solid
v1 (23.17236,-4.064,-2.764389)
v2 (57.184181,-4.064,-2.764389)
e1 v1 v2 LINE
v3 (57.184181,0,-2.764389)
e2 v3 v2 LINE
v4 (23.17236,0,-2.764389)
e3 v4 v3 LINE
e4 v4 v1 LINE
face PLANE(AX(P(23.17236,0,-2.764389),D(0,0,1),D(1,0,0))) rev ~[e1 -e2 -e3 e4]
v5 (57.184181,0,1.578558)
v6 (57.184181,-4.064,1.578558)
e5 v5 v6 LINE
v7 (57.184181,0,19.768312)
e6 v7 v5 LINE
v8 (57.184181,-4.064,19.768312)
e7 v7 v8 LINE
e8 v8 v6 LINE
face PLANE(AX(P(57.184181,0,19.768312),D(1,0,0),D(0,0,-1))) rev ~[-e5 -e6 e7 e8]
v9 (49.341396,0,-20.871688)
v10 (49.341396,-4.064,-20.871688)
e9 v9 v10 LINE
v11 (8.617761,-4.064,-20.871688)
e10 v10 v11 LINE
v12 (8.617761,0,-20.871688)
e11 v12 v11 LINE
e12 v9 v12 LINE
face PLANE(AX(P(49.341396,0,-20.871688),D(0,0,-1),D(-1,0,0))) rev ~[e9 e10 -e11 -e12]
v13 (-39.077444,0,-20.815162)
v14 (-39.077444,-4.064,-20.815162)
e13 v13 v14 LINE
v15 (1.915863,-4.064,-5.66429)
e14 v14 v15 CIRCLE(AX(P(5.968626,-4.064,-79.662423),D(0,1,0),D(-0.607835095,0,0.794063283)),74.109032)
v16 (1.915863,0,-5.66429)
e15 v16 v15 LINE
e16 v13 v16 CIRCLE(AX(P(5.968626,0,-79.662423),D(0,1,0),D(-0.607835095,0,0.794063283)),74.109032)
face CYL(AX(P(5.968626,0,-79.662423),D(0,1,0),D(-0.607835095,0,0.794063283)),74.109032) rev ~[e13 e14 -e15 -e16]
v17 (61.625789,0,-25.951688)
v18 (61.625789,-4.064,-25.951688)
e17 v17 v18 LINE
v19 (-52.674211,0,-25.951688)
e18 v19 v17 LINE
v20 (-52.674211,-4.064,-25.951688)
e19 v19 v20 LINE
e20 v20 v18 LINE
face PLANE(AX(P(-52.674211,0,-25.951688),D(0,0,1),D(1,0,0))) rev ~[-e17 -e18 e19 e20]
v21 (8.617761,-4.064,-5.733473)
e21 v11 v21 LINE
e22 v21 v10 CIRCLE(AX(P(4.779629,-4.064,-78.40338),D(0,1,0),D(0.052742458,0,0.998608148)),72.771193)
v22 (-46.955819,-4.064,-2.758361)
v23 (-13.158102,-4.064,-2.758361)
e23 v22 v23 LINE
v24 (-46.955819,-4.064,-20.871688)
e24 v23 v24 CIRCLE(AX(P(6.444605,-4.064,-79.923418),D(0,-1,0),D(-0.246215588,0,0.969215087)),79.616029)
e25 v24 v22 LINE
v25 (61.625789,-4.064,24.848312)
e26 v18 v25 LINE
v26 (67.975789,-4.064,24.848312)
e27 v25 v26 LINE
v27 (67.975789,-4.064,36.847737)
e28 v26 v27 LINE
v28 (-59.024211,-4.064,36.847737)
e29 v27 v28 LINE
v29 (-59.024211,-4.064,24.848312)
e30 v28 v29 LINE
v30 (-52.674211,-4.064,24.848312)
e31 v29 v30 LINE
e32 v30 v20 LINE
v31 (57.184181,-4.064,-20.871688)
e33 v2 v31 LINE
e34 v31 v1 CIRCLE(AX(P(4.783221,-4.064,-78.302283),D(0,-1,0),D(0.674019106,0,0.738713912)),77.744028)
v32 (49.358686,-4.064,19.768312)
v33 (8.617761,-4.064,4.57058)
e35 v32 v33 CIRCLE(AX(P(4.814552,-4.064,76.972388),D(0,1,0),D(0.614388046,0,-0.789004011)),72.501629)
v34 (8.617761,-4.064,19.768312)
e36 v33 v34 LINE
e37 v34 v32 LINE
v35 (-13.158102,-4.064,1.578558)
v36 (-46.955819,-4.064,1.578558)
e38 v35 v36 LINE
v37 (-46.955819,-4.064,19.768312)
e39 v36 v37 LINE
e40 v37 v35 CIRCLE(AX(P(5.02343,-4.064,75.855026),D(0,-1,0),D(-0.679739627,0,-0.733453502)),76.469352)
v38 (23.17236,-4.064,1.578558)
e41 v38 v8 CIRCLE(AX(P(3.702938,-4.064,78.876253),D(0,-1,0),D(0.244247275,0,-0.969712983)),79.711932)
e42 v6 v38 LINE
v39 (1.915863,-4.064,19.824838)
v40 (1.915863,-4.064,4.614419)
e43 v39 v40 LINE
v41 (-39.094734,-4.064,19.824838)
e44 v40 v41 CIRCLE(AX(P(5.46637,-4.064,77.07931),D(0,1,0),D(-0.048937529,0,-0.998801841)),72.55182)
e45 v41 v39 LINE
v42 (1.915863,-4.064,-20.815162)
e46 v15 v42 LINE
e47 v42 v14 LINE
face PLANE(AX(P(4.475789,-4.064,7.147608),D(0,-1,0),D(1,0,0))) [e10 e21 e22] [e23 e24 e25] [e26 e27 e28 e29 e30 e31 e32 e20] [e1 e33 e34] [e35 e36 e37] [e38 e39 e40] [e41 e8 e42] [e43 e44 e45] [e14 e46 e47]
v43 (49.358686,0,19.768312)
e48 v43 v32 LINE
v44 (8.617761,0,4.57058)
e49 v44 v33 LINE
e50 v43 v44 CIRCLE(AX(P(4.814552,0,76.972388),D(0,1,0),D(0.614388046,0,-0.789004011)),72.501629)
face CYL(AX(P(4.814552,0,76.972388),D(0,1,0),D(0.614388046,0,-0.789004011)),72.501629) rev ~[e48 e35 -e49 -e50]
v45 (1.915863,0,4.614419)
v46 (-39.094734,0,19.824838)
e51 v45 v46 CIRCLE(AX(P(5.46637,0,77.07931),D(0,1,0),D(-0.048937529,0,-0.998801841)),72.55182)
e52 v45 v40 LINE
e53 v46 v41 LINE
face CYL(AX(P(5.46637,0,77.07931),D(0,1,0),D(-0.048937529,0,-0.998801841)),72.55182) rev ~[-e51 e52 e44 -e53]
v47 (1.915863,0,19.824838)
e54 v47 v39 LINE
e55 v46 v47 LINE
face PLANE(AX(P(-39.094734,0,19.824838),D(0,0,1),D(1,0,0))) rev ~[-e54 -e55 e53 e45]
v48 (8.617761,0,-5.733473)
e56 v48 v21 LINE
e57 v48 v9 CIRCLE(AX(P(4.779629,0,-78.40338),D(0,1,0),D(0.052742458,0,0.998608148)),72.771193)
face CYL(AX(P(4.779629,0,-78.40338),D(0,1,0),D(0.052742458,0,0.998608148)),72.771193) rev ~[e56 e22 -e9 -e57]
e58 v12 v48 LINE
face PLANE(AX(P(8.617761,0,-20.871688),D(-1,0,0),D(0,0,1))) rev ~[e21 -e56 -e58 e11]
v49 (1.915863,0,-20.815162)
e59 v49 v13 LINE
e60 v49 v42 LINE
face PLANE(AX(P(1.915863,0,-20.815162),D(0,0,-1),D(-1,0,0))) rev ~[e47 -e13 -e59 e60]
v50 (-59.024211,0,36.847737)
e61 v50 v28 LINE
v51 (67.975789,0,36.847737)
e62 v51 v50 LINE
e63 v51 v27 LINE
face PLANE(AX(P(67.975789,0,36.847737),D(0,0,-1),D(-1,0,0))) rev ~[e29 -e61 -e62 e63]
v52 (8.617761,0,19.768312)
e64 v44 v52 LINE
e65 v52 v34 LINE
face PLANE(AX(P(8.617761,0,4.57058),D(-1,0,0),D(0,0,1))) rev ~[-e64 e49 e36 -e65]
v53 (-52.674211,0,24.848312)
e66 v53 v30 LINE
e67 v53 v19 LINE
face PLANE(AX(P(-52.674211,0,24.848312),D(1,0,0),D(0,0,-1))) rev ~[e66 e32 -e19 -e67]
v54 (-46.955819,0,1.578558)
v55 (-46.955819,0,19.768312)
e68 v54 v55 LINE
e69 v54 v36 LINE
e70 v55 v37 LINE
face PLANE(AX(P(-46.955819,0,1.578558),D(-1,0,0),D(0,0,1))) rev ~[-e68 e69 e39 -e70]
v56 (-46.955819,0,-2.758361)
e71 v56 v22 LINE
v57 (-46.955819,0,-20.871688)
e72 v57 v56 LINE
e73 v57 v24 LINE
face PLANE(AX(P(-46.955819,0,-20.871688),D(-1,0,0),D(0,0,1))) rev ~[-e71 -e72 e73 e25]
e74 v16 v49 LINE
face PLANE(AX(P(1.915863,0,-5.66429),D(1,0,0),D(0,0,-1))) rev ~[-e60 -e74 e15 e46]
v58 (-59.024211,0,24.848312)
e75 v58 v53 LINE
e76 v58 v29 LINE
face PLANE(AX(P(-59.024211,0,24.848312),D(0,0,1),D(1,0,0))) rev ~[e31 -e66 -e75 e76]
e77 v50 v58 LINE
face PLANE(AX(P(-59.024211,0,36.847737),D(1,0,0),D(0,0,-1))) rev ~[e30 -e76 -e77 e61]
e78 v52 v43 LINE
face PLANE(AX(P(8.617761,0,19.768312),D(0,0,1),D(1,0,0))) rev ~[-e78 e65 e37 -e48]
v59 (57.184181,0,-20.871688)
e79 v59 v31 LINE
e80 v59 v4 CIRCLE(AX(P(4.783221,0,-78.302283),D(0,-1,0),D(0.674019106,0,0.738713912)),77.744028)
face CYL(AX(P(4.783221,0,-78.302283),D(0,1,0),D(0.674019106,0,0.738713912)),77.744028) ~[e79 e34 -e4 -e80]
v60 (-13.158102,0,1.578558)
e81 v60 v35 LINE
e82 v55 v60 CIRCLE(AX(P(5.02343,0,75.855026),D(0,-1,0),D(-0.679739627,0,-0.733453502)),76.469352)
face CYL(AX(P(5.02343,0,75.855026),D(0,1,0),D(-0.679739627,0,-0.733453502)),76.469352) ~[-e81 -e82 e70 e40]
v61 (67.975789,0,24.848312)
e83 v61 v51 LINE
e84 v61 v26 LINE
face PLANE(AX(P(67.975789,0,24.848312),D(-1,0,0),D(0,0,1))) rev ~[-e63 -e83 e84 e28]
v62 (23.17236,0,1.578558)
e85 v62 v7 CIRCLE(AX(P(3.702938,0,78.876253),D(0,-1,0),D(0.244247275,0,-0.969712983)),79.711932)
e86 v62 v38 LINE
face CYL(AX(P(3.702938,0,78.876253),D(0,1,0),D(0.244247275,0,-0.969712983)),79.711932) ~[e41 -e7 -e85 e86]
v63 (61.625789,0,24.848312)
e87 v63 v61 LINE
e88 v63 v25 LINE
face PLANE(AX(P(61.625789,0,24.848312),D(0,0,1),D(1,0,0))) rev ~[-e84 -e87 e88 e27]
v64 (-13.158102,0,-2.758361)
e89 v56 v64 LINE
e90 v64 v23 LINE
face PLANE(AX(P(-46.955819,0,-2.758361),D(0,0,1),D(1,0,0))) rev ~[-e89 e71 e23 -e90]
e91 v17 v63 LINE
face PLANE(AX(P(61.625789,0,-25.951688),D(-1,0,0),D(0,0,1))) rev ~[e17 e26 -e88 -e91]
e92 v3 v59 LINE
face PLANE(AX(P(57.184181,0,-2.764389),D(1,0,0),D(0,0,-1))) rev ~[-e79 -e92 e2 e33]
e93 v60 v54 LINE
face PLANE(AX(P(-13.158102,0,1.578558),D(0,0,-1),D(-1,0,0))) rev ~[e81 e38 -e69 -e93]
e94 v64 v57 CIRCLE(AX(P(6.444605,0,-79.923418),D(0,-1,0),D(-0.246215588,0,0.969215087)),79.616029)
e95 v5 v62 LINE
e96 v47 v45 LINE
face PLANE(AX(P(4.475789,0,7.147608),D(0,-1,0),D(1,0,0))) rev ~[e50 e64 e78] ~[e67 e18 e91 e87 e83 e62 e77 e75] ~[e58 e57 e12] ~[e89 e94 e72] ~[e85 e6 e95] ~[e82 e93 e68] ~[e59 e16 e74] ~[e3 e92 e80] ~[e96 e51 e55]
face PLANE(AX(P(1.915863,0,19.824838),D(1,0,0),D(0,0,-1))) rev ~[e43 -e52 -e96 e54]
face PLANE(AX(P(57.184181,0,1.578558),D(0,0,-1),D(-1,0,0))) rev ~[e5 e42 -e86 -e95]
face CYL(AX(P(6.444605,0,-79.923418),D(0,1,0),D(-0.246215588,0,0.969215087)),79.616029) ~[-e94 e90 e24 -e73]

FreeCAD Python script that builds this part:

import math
import FreeCAD as App
import Part
import Sketcher

V = App.Vector
Q = App.Units.Quantity

doc = App.newDocument("Part")
body = doc.addObject("PartDesign::Body", "Body")

# Sketch on XZ plane
sketch1 = doc.addObject("Sketcher::SketchObject", "Sketch")
body.addObject(sketch1)
sketch1.AttachmentSupport = (doc.XZ_Plane, [""])
sketch1.MapMode = "FlatFace"
sketch1.addGeometry(Part.LineSegment(V(-53, 25, 0), V(-53, -26, 0)), False)
sketch1.addGeometry(Part.LineSegment(V(-53, -26, 0), V(62, -26, 0)), False)
sketch1.addGeometry(Part.LineSegment(V(62, -26, 0), V(62, 25, 0)), False)
sketch1.addGeometry(Part.LineSegment(V(62, 25, 0), V(68, 25, 0)), False)
sketch1.addGeometry(Part.LineSegment(V(68, 25, 0), V(68, 37, 0)), False)
sketch1.addGeometry(Part.LineSegment(V(68, 37, 0), V(-59, 37, 0)), False)
sketch1.addGeometry(Part.LineSegment(V(-59, 37, 0), V(-59, 25, 0)), False)
sketch1.addGeometry(Part.LineSegment(V(-59, 25, 0), V(-53, 25, 0)), False)
sketch1.addGeometry(Part.LineSegment(V(-47, -21, 0), V(-47, -3, 0)), False)
sketch1.addGeometry(Part.LineSegment(V(-47, -3, 0), V(-13, -3, 0)), False)
sketch1.addGeometry(Part.ArcOfCircle(Part.Circle(V(6, -80, 0), V(0, 0, 1), 80), math.radians(104), math.radians(132)), False)
sketch1.addGeometry(Part.LineSegment(V(2, -21, 0), V(-39, -21, 0)), False)
sketch1.addGeometry(Part.ArcOfCircle(Part.Circle(V(6, -80, 0), V(0, 0, 1), 74), math.radians(93), math.radians(127)), False)
sketch1.addGeometry(Part.LineSegment(V(2, -6, 0), V(2, -21, 0)), False)
sketch1.addGeometry(Part.LineSegment(V(49, -21, 0), V(9, -21, 0)), False)
sketch1.addGeometry(Part.LineSegment(V(9, -21, 0), V(9, -6, 0)), False)
sketch1.addGeometry(Part.ArcOfCircle(Part.Circle(V(5, -78, 0), V(0, 0, 1), 73), math.radians(52), math.radians(87)), False)
sketch1.addGeometry(Part.LineSegment(V(57, -3, 0), V(57, -21, 0)), False)
sketch1.addGeometry(Part.ArcOfCircle(Part.Circle(V(5, -78, 0), V(0, 0, 1), 78), math.radians(48), math.radians(76)), False)
sketch1.addGeometry(Part.LineSegment(V(23, -3, 0), V(57, -3, 0)), False)
sketch1.addGeometry(Part.LineSegment(V(-47, 2, 0), V(-47, 20, 0)), False)
sketch1.addGeometry(Part.ArcOfCircle(Part.Circle(V(5, 76, 0), V(0, 0, 1), 76), math.radians(-133), math.radians(-104)), False)
sketch1.addGeometry(Part.LineSegment(V(-13, 2, 0), V(-47, 2, 0)), False)
sketch1.addGeometry(Part.LineSegment(V(-39, 20, 0), V(2, 20, 0)), False)
sketch1.addGeometry(Part.LineSegment(V(2, 20, 0), V(2, 5, 0)), False)
sketch1.addGeometry(Part.ArcOfCircle(Part.Circle(V(5, 77, 0), V(0, 0, 1), 73), math.radians(-128), math.radians(-93)), False)
sketch1.addGeometry(Part.ArcOfCircle(Part.Circle(V(5, 77, 0), V(0, 0, 1), 73), math.radians(-87), math.radians(-52)), False)
sketch1.addGeometry(Part.LineSegment(V(9, 5, 0), V(9, 20, 0)), False)
sketch1.addGeometry(Part.LineSegment(V(9, 20, 0), V(49, 20, 0)), False)
sketch1.addGeometry(Part.LineSegment(V(57, 20, 0), V(57, 2, 0)), False)
sketch1.addGeometry(Part.LineSegment(V(57, 2, 0), V(23, 2, 0)), False)
sketch1.addGeometry(Part.ArcOfCircle(Part.Circle(V(4, 79, 0), V(0, 0, 1), 80), math.radians(-76), math.radians(-48)), False)
sketch1.addConstraint(Sketcher.Constraint("Coincident", 0, 2, 1, 1))
sketch1.addConstraint(Sketcher.Constraint("Coincident", 1, 2, 2, 1))
sketch1.addConstraint(Sketcher.Constraint("Coincident", 2, 2, 3, 1))
sketch1.addConstraint(Sketcher.Constraint("Coincident", 3, 2, 4, 1))
sketch1.addConstraint(Sketcher.Constraint("Coincident", 4, 2, 5, 1))
sketch1.addConstraint(Sketcher.Constraint("Coincident", 5, 2, 6, 1))
sketch1.addConstraint(Sketcher.Constraint("Coincident", 6, 2, 7, 1))
sketch1.addConstraint(Sketcher.Constraint("Coincident", 7, 2, 0, 1))
sketch1.addConstraint(Sketcher.Constraint("Coincident", 8, 2, 9, 1))
sketch1.addConstraint(Sketcher.Constraint("Coincident", 9, 2, 10, 1))
sketch1.addConstraint(Sketcher.Constraint("Coincident", 10, 2, 8, 1))
sketch1.addConstraint(Sketcher.Constraint("Coincident", 11, 2, 12, 2))
sketch1.addConstraint(Sketcher.Constraint("Coincident", 12, 1, 13, 1))
sketch1.addConstraint(Sketcher.Constraint("Coincident", 13, 2, 11, 1))
sketch1.addConstraint(Sketcher.Constraint("Coincident", 14, 2, 15, 1))
sketch1.addConstraint(Sketcher.Constraint("Coincident", 15, 2, 16, 2))
sketch1.addConstraint(Sketcher.Constraint("Coincident", 16, 1, 14, 1))
sketch1.addConstraint(Sketcher.Constraint("Coincident", 17, 2, 18, 1))
sketch1.addConstraint(Sketcher.Constraint("Coincident", 18, 2, 19, 1))
sketch1.addConstraint(Sketcher.Constraint("Coincident", 19, 2, 17, 1))
sketch1.addConstraint(Sketcher.Constraint("Coincident", 20, 2, 21, 1))
sketch1.addConstraint(Sketcher.Constraint("Coincident", 21, 2, 22, 1))
sketch1.addConstraint(Sketcher.Constraint("Coincident", 22, 2, 20, 1))
sketch1.addConstraint(Sketcher.Constraint("Coincident", 23, 2, 24, 1))
sketch1.addConstraint(Sketcher.Constraint("Coincident", 24, 2, 25, 2))
sketch1.addConstraint(Sketcher.Constraint("Coincident", 25, 1, 23, 1))
sketch1.addConstraint(Sketcher.Constraint("Coincident", 26, 1, 27, 1))
sketch1.addConstraint(Sketcher.Constraint("Coincident", 27, 2, 28, 1))
sketch1.addConstraint(Sketcher.Constraint("Coincident", 28, 2, 26, 2))
sketch1.addConstraint(Sketcher.Constraint("Coincident", 29, 2, 30, 1))
sketch1.addConstraint(Sketcher.Constraint("Coincident", 30, 2, 31, 1))
sketch1.addConstraint(Sketcher.Constraint("Coincident", 31, 2, 29, 1))
sketch1.addConstraint(Sketcher.Constraint("Vertical", 0))
sketch1.addConstraint(Sketcher.Constraint("Horizontal", 1))
sketch1.addConstraint(Sketcher.Constraint("Vertical", 2))
sketch1.addConstraint(Sketcher.Constraint("Horizontal", 3))
sketch1.addConstraint(Sketcher.Constraint("Vertical", 4))
sketch1.addConstraint(Sketcher.Constraint("Horizontal", 5))
sketch1.addConstraint(Sketcher.Constraint("Vertical", 6))
sketch1.addConstraint(Sketcher.Constraint("Horizontal", 7))
sketch1.addConstraint(Sketcher.Constraint("Vertical", 8))
sketch1.addConstraint(Sketcher.Constraint("Horizontal", 9))
sketch1.addConstraint(Sketcher.Constraint("Horizontal", 11))
sketch1.addConstraint(Sketcher.Constraint("Vertical", 13))
sketch1.addConstraint(Sketcher.Constraint("Horizontal", 14))
sketch1.addConstraint(Sketcher.Constraint("Vertical", 15))
sketch1.addConstraint(Sketcher.Constraint("Vertical", 17))
sketch1.addConstraint(Sketcher.Constraint("Horizontal", 19))
sketch1.addConstraint(Sketcher.Constraint("Vertical", 20))
sketch1.addConstraint(Sketcher.Constraint("Horizontal", 22))
sketch1.addConstraint(Sketcher.Constraint("Horizontal", 23))
sketch1.addConstraint(Sketcher.Constraint("Vertical", 24))
sketch1.addConstraint(Sketcher.Constraint("Vertical", 27))
sketch1.addConstraint(Sketcher.Constraint("Horizontal", 28))
sketch1.addConstraint(Sketcher.Constraint("Vertical", 29))
sketch1.addConstraint(Sketcher.Constraint("Horizontal", 30))
sketch1.addConstraint(Sketcher.Constraint("Horizontal", 3, 2, 6, 2))
sketch1.addConstraint(Sketcher.Constraint("Horizontal", 10, 2, 14, 2))
sketch1.addConstraint(Sketcher.Constraint("Horizontal", 16, 1, 17, 2))
sketch1.addConstraint(Sketcher.Constraint("Horizontal", 20, 2, 27, 2))
sketch1.addConstraint(Sketcher.Constraint("Horizontal", 22, 2, 29, 2))
sketch1.addConstraint(Sketcher.Constraint("Horizontal", 28, 2, 31, 2))
sketch1.addConstraint(Sketcher.Constraint("Vertical", 10, 2, 20, 2))
sketch1.addConstraint(Sketcher.Constraint("Vertical", 9, 2, 21, 2))
sketch1.addConstraint(Sketcher.Constraint("Vertical", 13, 2, 23, 2))
sketch1.addConstraint(Sketcher.Constraint("Vertical", 15, 2, 26, 1))
sketch1.addConstraint(Sketcher.Constraint("Vertical", 19, 2, 29, 2))
sketch1.addConstraint(Sketcher.Constraint("Vertical", 18, 2, 30, 2))
sketch1.addConstraint(Sketcher.Constraint("Equal", 3, 7))
sketch1.addConstraint(Sketcher.Constraint("DistanceX", 5, 2, 5, 1, Q("5 in")))
sketch1.addConstraint(Sketcher.Constraint("DistanceY", 0, 2, 0, 1, Q("2 in")))
sketch1.addConstraint(Sketcher.Constraint("DistanceX", 1, 1, 1, 2, Q("4.5 in")))
sketch1.addConstraint(Sketcher.Constraint("DistanceY", 0, 2, 10, 2, Q("0.2 in")))
sketch1.addConstraint(Sketcher.Constraint("DistanceY", 20, 2, 7, 2, Q("0.2 in")))
sketch1.addConstraint(Sketcher.Constraint("Radius", 10, 79.616029))
sketch1.addConstraint(Sketcher.Constraint("Radius", 12, 74.109032))
sketch1.addConstraint(Sketcher.Constraint("Radius", 25, 72.55182))
sketch1.addConstraint(Sketcher.Constraint("Radius", 26, 72.501629))
sketch1.addConstraint(Sketcher.Constraint("Radius", 31, 79.711932))
sketch1.addConstraint(Sketcher.Constraint("DistanceY", 17, 2, 17, 1, 18.107299))
sketch1.addConstraint(Sketcher.Constraint("Radius", 16, 72.771193))
sketch1.addConstraint(Sketcher.Constraint("Radius", 18, 77.744028))
sketch1.addConstraint(Sketcher.Constraint("Radius", 21, 76.469352))
sketch1.addConstraint(Sketcher.Constraint("DistanceY", 21, 3, 25, 3, Q("0.0482002 in")))
sketch1.addConstraint(Sketcher.Constraint("DistanceX", 19, 1, 19, 2, 34.011821))
sketch1.addConstraint(Sketcher.Constraint("DistanceY", 24, 2, 24, 1, 15.210419))
sketch1.addConstraint(Sketcher.Constraint("DistanceX", 16, 3, 21, 3, 0.2438))
sketch1.addConstraint(Sketcher.Constraint("DistanceY", 2, 2, 25, 3, 52.230998))
sketch1.addConstraint(Sketcher.Constraint("DistanceY", 8, 2, 5, 2, 39.606098))
sketch1.addConstraint(Sketcher.Constraint("DistanceY", 11, 2, 8, 2, 18.056801))
sketch1.addConstraint(Sketcher.Constraint("DistanceY", 10, 2, 12, 1, 15.207398))
sketch1.addConstraint(Sketcher.Constraint("DistanceX", 15, 2, 18, 2, 14.554599))
sketch1.addConstraint(Sketcher.Constraint("DistanceY", 9, 2, 23, 2, 22.583199))
sketch1.addConstraint(Sketcher.Constraint("DistanceX", 9, 1, 9, 2, 33.797717))
sketch1.addConstraint(Sketcher.Constraint("DistanceX", 11, 2, 11, 1, 40.993307))
sketch1.addConstraint(Sketcher.Constraint("DistanceX", 14, 2, 14, 1, 40.723635))
sketch1.addConstraint(Sketcher.Constraint("DistanceX", 23, 1, 23, 2, 41.010597))
sketch1.addConstraint(Sketcher.Constraint("DistanceX", 28, 1, 28, 2, 40.740925))
sketch1.addConstraint(Sketcher.Constraint("DistanceY", 15, 1, 15, 2, 15.138215))
sketch1.addConstraint(Sketcher.Constraint("DistanceY", 27, 1, 27, 2, 15.197732))
sketch1.addConstraint(Sketcher.Constraint("DistanceX", -1, 1, 16, 3, 4.779629))
sketch1.addConstraint(Sketcher.Constraint("DistanceY", 16, 3, -1, 1, 78.40338))
sketch1.addConstraint(Sketcher.Constraint("DistanceX", -1, 1, 25, 3, 5.46637))
sketch1.addConstraint(Sketcher.Constraint("DistanceX", 0, 2, -1, 1, 52.674211))
pad1 = doc.addObject("PartDesign::Pad", "Pad")
body.addObject(pad1)
pad1.Profile = sketch1
pad1.Length = Q("0.16 in")

doc.recompute()
